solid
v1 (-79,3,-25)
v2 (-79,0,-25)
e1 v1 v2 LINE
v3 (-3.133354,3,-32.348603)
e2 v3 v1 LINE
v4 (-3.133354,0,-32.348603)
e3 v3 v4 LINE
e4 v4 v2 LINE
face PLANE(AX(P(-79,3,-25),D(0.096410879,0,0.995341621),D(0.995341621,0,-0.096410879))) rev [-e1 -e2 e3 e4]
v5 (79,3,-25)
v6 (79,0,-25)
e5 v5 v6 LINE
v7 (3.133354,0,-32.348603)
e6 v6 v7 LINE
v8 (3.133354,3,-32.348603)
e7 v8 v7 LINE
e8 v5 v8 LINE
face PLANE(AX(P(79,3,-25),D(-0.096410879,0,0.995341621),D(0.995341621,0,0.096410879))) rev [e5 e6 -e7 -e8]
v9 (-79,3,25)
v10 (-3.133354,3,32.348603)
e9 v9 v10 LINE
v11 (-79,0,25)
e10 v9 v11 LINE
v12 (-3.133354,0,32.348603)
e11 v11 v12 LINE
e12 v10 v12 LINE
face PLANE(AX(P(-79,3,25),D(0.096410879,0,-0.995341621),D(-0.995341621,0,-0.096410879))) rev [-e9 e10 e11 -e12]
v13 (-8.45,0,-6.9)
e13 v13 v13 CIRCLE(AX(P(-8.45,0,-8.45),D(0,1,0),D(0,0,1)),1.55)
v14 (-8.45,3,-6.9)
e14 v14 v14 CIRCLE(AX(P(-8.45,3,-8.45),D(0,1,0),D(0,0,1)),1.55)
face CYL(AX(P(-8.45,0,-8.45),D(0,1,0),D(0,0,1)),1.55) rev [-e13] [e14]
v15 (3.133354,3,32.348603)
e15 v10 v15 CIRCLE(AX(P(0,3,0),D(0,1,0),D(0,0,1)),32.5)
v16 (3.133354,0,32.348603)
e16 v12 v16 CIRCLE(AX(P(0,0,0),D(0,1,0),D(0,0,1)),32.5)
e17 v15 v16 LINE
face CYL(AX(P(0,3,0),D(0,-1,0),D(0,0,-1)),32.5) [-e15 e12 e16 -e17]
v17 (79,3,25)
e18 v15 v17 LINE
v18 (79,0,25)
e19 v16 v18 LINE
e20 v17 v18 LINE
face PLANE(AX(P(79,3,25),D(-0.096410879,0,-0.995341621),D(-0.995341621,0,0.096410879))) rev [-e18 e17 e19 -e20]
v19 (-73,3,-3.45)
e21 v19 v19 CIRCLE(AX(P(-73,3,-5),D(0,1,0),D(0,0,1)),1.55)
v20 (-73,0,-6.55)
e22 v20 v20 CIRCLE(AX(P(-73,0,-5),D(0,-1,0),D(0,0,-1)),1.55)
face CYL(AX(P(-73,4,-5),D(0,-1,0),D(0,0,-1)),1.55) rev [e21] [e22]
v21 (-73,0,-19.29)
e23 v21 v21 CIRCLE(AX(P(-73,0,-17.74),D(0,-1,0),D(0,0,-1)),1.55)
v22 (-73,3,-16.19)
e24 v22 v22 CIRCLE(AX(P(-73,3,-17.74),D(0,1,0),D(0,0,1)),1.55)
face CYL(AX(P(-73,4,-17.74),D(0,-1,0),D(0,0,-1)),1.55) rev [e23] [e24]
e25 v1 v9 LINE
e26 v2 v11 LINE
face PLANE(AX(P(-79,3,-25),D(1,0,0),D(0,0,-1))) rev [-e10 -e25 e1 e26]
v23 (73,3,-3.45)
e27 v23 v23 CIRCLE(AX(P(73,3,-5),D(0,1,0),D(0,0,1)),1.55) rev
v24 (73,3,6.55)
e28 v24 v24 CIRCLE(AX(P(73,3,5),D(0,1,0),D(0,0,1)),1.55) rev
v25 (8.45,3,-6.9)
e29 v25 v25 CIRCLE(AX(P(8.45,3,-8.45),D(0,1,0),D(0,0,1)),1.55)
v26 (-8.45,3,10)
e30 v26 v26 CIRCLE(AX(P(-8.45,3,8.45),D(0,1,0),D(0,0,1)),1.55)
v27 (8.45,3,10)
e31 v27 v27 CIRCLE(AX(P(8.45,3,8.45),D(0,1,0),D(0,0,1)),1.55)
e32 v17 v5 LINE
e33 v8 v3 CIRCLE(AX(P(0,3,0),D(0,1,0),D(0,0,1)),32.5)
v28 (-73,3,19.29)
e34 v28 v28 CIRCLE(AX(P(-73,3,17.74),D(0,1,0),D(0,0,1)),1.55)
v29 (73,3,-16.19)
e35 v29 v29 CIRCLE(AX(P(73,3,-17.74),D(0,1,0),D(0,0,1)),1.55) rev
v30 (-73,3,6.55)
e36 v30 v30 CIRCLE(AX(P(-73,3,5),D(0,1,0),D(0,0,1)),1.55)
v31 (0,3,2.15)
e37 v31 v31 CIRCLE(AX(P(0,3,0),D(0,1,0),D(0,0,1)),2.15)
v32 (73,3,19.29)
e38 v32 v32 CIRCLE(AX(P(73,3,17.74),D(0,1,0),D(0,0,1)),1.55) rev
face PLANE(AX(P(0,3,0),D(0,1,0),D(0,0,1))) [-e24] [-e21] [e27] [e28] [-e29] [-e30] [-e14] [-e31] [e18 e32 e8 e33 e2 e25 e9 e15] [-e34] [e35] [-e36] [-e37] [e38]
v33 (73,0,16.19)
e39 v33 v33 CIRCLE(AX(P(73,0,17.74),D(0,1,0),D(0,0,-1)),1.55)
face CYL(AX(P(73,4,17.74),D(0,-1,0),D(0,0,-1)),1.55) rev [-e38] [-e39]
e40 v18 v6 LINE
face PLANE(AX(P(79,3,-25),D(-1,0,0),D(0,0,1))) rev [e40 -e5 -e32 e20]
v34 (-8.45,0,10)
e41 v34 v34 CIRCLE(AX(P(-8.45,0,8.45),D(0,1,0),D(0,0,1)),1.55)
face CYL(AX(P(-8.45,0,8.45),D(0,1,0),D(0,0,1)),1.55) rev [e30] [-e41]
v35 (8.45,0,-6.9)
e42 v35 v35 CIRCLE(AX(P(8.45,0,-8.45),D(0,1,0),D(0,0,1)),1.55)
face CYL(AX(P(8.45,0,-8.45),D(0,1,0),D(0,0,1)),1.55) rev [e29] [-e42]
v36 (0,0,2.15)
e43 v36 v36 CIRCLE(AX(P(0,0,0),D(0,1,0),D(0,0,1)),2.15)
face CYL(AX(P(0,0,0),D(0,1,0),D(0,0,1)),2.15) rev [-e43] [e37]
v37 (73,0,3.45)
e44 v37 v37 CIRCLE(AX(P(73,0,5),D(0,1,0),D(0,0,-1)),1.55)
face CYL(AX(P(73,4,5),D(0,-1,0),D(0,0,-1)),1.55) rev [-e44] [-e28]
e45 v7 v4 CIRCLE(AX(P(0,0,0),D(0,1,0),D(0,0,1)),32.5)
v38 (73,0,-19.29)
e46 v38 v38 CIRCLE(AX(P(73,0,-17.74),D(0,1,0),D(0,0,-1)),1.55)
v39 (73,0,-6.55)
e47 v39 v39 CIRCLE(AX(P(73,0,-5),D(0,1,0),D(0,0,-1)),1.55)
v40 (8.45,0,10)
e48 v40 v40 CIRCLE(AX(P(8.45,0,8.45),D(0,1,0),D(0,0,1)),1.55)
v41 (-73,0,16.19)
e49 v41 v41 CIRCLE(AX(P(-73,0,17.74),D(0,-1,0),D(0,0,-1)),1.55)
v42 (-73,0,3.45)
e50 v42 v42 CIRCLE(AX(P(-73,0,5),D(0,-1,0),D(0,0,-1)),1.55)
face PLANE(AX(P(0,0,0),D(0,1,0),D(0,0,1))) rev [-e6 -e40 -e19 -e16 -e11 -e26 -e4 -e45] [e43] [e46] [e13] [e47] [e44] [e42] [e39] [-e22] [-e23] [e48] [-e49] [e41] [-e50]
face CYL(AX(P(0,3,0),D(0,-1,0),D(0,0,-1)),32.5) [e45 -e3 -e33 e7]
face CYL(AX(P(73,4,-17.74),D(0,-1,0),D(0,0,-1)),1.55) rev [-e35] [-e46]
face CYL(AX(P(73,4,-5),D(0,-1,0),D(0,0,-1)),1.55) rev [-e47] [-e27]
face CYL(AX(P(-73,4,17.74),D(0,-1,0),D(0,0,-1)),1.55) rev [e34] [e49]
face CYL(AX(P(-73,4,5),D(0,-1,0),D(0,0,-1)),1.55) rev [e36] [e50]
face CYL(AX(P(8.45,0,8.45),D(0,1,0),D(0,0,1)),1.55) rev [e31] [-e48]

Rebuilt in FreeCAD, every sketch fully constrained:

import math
import FreeCAD as App
import Part
import Sketcher
Q = App.Units.Quantity

doc = App.newDocument("Part")
body = doc.addObject("PartDesign::Body", "Body")

sketch1 = body.newObject("Sketcher::SketchObject", "Sketch")
sketch1.AttachmentSupport = (doc.getObject("XZ_Plane"), [""])
sketch1.MapMode = "FlatFace"
sketch1.addGeometry(Part.LineSegment(App.Vector(-79, -25, 0), App.Vector(-79, 25, 0)), False)
sketch1.addGeometry(Part.LineSegment(App.Vector(-79, 25, 0), App.Vector(-3, 32, 0)), False)
sketch1.addGeometry(Part.ArcOfCircle(Part.Circle(App.Vector(0, 0, 0), App.Vector(0, 0, 1), 33), math.radians(84.47), math.radians(95.53)), False)
sketch1.addGeometry(Part.LineSegment(App.Vector(3, 32, 0), App.Vector(79, 25, 0)), False)
sketch1.addGeometry(Part.LineSegment(App.Vector(79, 25, 0), App.Vector(79, -25, 0)), False)
sketch1.addGeometry(Part.LineSegment(App.Vector(79, -25, 0), App.Vector(3, -32, 0)), False)
sketch1.addGeometry(Part.ArcOfCircle(Part.Circle(App.Vector(0, 0, 0), App.Vector(0, 0, 1), 33), math.radians(-95.53), math.radians(-84.47)), False)
sketch1.addGeometry(Part.LineSegment(App.Vector(-3, -32, 0), App.Vector(-79, -25, 0)), False)
sketch1.addConstraint(Sketcher.Constraint("Coincident", 0, 2, 1, 1))
sketch1.addConstraint(Sketcher.Constraint("Tangent", 1, 2, 2, 2))
sketch1.addConstraint(Sketcher.Constraint("Tangent", 2, 1, 3, 1))
sketch1.addConstraint(Sketcher.Constraint("Coincident", 3, 2, 4, 1))
sketch1.addConstraint(Sketcher.Constraint("Coincident", 4, 2, 5, 1))
sketch1.addConstraint(Sketcher.Constraint("Tangent", 5, 2, 6, 2))
sketch1.addConstraint(Sketcher.Constraint("Tangent", 6, 1, 7, 1))
sketch1.addConstraint(Sketcher.Constraint("Coincident", 7, 2, 0, 1))
sketch1.addConstraint(Sketcher.Constraint("Vertical", 0))
sketch1.addConstraint(Sketcher.Constraint("Vertical", 4))
sketch1.addConstraint(Sketcher.Constraint("Coincident", 2, 3, -1, 1))
sketch1.addConstraint(Sketcher.Constraint("Coincident", 6, 3, -1, 1))
sketch1.addConstraint(Sketcher.Constraint("Equal", 2, 6))
sketch1.addConstraint(Sketcher.Constraint("Symmetric", 0, 2, 4, 2, -1, 1))
sketch1.addConstraint(Sketcher.Constraint("Parallel", 3, 7))
sketch1.addConstraint(Sketcher.Constraint("Horizontal", 1, 2, 2, 1))
sketch1.addConstraint(Sketcher.Constraint("Radius", 2, Q("32.5 mm")))
sketch1.addConstraint(Sketcher.Constraint("DistanceY", 0, 1, 0, 2, Q("50 mm")))
sketch1.addConstraint(Sketcher.Constraint("DistanceX", 0, 2, -1, 1, Q("79 mm")))
pad1 = body.newObject("PartDesign::Pad", "Pad")
pad1.Profile = sketch1
pad1.Length = 3
pad1.Reversed = True

sketch2 = body.newObject("Sketcher::SketchObject", "Sketch001")
sketch2.AttachmentSupport = (doc.getObject("XZ_Plane"), [""])
sketch2.MapMode = "FlatFace"
sketch2.AttachmentOffset = App.Placement(App.Vector(0, 0, -3), App.Rotation())
sketch2.addGeometry(Part.Circle(App.Vector(-8.4, -8.4, 0), App.Vector(0, 0, 1), 1.6), False)
sketch2.addGeometry(Part.Circle(App.Vector(8.4, -8.4, 0), App.Vector(0, 0, 1), 1.6), False)
sketch2.addGeometry(Part.Circle(App.Vector(8.4, 8.4, 0), App.Vector(0, 0, 1), 1.6), False)
sketch2.addGeometry(Part.Circle(App.Vector(-8.4, 8.4, 0), App.Vector(0, 0, 1), 1.6), False)
sketch2.addGeometry(Part.Circle(App.Vector(0, 0, 0), App.Vector(0, 0, 1), 2.1), False)
sketch2.addConstraint(Sketcher.Constraint("Coincident", 4, 3, -1, 1))
sketch2.addConstraint(Sketcher.Constraint("Equal", 0, 1))
sketch2.addConstraint(Sketcher.Constraint("Equal", 1, 2))
sketch2.addConstraint(Sketcher.Constraint("Equal", 2, 3))
sketch2.addConstraint(Sketcher.Constraint("Symmetric", 0, 3, 2, 3, -1, 1))
sketch2.addConstraint(Sketcher.Constraint("Symmetric", 1, 3, 3, 3, -1, 1))
sketch2.addConstraint(Sketcher.Constraint("Symmetric", 0, 3, 1, 3, -2))
sketch2.addConstraint(Sketcher.Constraint("Diameter", 0, Q("3.1 mm")))
sketch2.addConstraint(Sketcher.Constraint("Diameter", 4, Q("4.3 mm")))
sketch2.addConstraint(Sketcher.Constraint("DistanceX", 0, 3, 1, 3, Q("16.9 mm")))
sketch2.addConstraint(Sketcher.Constraint("DistanceY", 1, 3, 2, 3, Q("16.9 mm")))
pocket1 = body.newObject("PartDesign::Pocket", "Pocket")
pocket1.Profile = sketch2
pocket1.Length = 3
pocket1.Reversed = True

sketch3 = body.newObject("Sketcher::SketchObject", "Sketch002")
sketch3.AttachmentSupport = (doc.getObject("XZ_Plane"), [""])
sketch3.MapMode = "FlatFace"
sketch3.addGeometry(Part.Circle(App.Vector(-73, 17.7, 0), App.Vector(0, 0, 1), 1.6), False)
sketch3.addGeometry(Part.Circle(App.Vector(-73, 5, 0), App.Vector(0, 0, 1), 1.6), False)
sketch3.addGeometry(Part.Circle(App.Vector(-73, -5, 0), App.Vector(0, 0, 1), 1.6), False)
sketch3.addGeometry(Part.Circle(App.Vector(-73, -17.7, 0), App.Vector(0, 0, 1), 1.6), False)
sketch3.addConstraint(Sketcher.Constraint("Equal", 0, 1))
sketch3.addConstraint(Sketcher.Constraint("Equal", 1, 2))
sketch3.addConstraint(Sketcher.Constraint("Equal", 2, 3))
sketch3.addConstraint(Sketcher.Constraint("Symmetric", 1, 3, 2, 3, -1))
sketch3.addConstraint(Sketcher.Constraint("Symmetric", 0, 3, 3, 3, -1))
sketch3.addConstraint(Sketcher.Constraint("Vertical", 0, 3, 1, 3))
sketch3.addConstraint(Sketcher.Constraint("Diameter", 0, Q("3.1 mm")))
sketch3.addConstraint(Sketcher.Constraint("DistanceX", 0, 3, -1, 1, Q("73 mm")))
sketch3.addConstraint(Sketcher.Constraint("DistanceY", -1, 1, 1, 3, Q("5 mm")))
sketch3.addConstraint(Sketcher.Constraint("DistanceY", -1, 1, 0, 3, Q("17.74 mm")))
pocket2 = body.newObject("PartDesign::Pocket", "Pocket001")
pocket2.Profile = sketch3
pocket2.Length = 4
doc.recompute()

mirrored = body.newObject("PartDesign::Mirrored", "Mirrored")
mirrored.Originals = [pocket2]
mirrored.MirrorPlane = (doc.getObject("YZ_Plane"), [""])
body.Tip = mirrored

doc.recompute()
